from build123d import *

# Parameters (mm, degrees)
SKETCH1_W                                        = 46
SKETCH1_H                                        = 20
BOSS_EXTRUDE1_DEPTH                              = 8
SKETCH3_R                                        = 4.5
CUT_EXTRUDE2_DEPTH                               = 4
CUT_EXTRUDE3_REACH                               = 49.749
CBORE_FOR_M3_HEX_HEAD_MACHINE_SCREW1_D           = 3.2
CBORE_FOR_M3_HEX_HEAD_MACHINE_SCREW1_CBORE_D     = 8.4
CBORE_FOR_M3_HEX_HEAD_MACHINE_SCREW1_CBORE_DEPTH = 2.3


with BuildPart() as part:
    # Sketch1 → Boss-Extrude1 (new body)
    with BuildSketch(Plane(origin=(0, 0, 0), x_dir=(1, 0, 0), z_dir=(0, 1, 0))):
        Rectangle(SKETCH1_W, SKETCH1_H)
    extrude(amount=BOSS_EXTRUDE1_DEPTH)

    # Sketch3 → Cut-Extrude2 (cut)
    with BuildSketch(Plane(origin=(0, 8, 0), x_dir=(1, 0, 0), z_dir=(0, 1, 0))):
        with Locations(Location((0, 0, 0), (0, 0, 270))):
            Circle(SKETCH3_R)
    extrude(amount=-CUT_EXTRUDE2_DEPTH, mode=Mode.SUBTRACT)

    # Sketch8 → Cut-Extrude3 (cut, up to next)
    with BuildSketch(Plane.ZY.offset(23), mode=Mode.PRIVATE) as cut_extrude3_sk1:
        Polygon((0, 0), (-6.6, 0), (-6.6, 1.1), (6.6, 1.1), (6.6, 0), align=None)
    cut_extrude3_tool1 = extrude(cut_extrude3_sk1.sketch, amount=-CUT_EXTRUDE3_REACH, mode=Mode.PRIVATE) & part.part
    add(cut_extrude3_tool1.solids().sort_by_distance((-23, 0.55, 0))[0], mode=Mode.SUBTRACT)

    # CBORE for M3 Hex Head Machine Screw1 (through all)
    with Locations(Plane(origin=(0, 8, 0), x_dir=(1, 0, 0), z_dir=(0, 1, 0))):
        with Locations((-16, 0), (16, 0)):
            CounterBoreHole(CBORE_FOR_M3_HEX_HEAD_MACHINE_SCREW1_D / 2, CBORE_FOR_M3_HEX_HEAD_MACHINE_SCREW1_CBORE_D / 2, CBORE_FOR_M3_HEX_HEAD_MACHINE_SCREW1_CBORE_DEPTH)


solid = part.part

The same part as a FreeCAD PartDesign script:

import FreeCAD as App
import Part
import Sketcher

V = App.Vector
Q = App.Units.Quantity

doc = App.newDocument("Part")
body = doc.addObject("PartDesign::Body", "Body")

sketch1 = body.newObject("Sketcher::SketchObject", "Sketch")
sketch1.AttachmentSupport = (doc.getObject("XZ_Plane"), [""])
sketch1.MapMode = "FlatFace"
sketch1.addGeometry([
    Part.LineSegment(V(-23, -10, 0), V(-23, 10, 0)),
    Part.LineSegment(V(-23, 10, 0), V(23, 10, 0)),
    Part.LineSegment(V(23, 10, 0), V(23, -10, 0)),
    Part.LineSegment(V(23, -10, 0), V(-23, -10, 0)),
], False)
sketch1.addConstraint([
    Sketcher.Constraint("Coincident", 0, 2, 1, 1),
    Sketcher.Constraint("Coincident", 1, 2, 2, 1),
    Sketcher.Constraint("Coincident", 2, 2, 3, 1),
    Sketcher.Constraint("Coincident", 3, 2, 0, 1),
    Sketcher.Constraint("Vertical", 0),
    Sketcher.Constraint("Horizontal", 1),
    Sketcher.Constraint("Vertical", 2),
    Sketcher.Constraint("Horizontal", 3),
    Sketcher.Constraint("Symmetric", 0, 2, 2, 2, -1, 1),
    Sketcher.Constraint("DistanceX", 1, 1, 1, 2, Q("46 mm")),
    Sketcher.Constraint("DistanceY", 0, 1, 0, 2, Q("20 mm")),
])
pad1 = body.newObject("PartDesign::Pad", "Pad")
pad1.Profile = sketch1
pad1.Length = 8
pad1.Reversed = True

sketch2 = body.newObject("Sketcher::SketchObject", "Sketch001")
sketch2.AttachmentSupport = (doc.getObject("XZ_Plane"), [""])
sketch2.MapMode = "FlatFace"
sketch2.AttachmentOffset = App.Placement(V(0, 0, -8), App.Rotation())
sketch2.addGeometry(Part.Circle(V(0, 0, 0), V(0, 0, 1), 4.5), False)
sketch2.addConstraint([
    Sketcher.Constraint("Coincident", 0, 3, -1, 1),
    Sketcher.Constraint("Diameter", 0, Q("9 mm")),
])
pocket1 = body.newObject("PartDesign::Pocket", "Pocket")
pocket1.Profile = sketch2
pocket1.Length = 4
pocket1.Reversed = True

sketch3 = body.newObject("Sketcher::SketchObject", "Sketch002")
sketch3.AttachmentSupport = (doc.getObject("YZ_Plane"), [""])
sketch3.MapMode = "FlatFace"
sketch3.AttachmentOffset = App.Placement(V(0, 0, -23), App.Rotation())
sketch3.addGeometry([
    Part.LineSegment(V(0, -6.6, 0), V(0, 6.6, 0)),
    Part.LineSegment(V(0, 6.6, 0), V(1.1, 6.6, 0)),
    Part.LineSegment(V(1.1, 6.6, 0), V(1.1, -6.6, 0)),
    Part.LineSegment(V(1.1, -6.6, 0), V(0, -6.6, 0)),
], False)
sketch3.addConstraint([
    Sketcher.Constraint("Coincident", 0, 2, 1, 1),
    Sketcher.Constraint("Coincident", 1, 2, 2, 1),
    Sketcher.Constraint("Coincident", 2, 2, 3, 1),
    Sketcher.Constraint("Coincident", 3, 2, 0, 1),
    Sketcher.Constraint("Vertical", 0),
    Sketcher.Constraint("Horizontal", 1),
    Sketcher.Constraint("Vertical", 2),
    Sketcher.Constraint("Horizontal", 3),
    Sketcher.Constraint("Symmetric", 0, 2, 3, 2, -1, 1),
    Sketcher.Constraint("DistanceX", 1, 1, 1, 2, Q("1.1 mm")),
    Sketcher.Constraint("DistanceY", 0, 1, 0, 2, Q("13.2 mm")),
])
pocket2 = body.newObject("PartDesign::Pocket", "Pocket001")
pocket2.Profile = sketch3
pocket2.Type = "UpToFirst"
pocket2.Reversed = True

sketch4 = body.newObject("Sketcher::SketchObject", "Sketch003")
sketch4.AttachmentSupport = (doc.getObject("XZ_Plane"), [""])
sketch4.MapMode = "FlatFace"
sketch4.AttachmentOffset = App.Placement(V(0, 0, -8), App.Rotation())
sketch4.addGeometry([
    Part.Circle(V(-16, 0, 0), V(0, 0, 1), 1.6),
    Part.Circle(V(16, 0, 0), V(0, 0, 1), 1.6),
], False)
sketch4.addConstraint([
    Sketcher.Constraint("Equal", 0, 1),
    Sketcher.Constraint("Symmetric", 0, 3, 1, 3, -1, 1),
    Sketcher.Constraint("PointOnObject", 0, 3, -1),
    Sketcher.Constraint("Diameter", 0, Q("3.2 mm")),
    Sketcher.Constraint("DistanceX", 0, 3, -1, 1, Q("16 mm")),
])
doc.recompute()
hole = body.newObject("PartDesign::Hole", "Hole")
hole.Profile = sketch4
hole.ThreadType = "None"
hole.Diameter = 3.2
hole.DepthType = "ThroughAll"
hole.HoleCutType = "Counterbore"
hole.HoleCutDiameter = 8.4
hole.HoleCutDepth = 2.3
hole.Reversed = True

doc.recompute()
